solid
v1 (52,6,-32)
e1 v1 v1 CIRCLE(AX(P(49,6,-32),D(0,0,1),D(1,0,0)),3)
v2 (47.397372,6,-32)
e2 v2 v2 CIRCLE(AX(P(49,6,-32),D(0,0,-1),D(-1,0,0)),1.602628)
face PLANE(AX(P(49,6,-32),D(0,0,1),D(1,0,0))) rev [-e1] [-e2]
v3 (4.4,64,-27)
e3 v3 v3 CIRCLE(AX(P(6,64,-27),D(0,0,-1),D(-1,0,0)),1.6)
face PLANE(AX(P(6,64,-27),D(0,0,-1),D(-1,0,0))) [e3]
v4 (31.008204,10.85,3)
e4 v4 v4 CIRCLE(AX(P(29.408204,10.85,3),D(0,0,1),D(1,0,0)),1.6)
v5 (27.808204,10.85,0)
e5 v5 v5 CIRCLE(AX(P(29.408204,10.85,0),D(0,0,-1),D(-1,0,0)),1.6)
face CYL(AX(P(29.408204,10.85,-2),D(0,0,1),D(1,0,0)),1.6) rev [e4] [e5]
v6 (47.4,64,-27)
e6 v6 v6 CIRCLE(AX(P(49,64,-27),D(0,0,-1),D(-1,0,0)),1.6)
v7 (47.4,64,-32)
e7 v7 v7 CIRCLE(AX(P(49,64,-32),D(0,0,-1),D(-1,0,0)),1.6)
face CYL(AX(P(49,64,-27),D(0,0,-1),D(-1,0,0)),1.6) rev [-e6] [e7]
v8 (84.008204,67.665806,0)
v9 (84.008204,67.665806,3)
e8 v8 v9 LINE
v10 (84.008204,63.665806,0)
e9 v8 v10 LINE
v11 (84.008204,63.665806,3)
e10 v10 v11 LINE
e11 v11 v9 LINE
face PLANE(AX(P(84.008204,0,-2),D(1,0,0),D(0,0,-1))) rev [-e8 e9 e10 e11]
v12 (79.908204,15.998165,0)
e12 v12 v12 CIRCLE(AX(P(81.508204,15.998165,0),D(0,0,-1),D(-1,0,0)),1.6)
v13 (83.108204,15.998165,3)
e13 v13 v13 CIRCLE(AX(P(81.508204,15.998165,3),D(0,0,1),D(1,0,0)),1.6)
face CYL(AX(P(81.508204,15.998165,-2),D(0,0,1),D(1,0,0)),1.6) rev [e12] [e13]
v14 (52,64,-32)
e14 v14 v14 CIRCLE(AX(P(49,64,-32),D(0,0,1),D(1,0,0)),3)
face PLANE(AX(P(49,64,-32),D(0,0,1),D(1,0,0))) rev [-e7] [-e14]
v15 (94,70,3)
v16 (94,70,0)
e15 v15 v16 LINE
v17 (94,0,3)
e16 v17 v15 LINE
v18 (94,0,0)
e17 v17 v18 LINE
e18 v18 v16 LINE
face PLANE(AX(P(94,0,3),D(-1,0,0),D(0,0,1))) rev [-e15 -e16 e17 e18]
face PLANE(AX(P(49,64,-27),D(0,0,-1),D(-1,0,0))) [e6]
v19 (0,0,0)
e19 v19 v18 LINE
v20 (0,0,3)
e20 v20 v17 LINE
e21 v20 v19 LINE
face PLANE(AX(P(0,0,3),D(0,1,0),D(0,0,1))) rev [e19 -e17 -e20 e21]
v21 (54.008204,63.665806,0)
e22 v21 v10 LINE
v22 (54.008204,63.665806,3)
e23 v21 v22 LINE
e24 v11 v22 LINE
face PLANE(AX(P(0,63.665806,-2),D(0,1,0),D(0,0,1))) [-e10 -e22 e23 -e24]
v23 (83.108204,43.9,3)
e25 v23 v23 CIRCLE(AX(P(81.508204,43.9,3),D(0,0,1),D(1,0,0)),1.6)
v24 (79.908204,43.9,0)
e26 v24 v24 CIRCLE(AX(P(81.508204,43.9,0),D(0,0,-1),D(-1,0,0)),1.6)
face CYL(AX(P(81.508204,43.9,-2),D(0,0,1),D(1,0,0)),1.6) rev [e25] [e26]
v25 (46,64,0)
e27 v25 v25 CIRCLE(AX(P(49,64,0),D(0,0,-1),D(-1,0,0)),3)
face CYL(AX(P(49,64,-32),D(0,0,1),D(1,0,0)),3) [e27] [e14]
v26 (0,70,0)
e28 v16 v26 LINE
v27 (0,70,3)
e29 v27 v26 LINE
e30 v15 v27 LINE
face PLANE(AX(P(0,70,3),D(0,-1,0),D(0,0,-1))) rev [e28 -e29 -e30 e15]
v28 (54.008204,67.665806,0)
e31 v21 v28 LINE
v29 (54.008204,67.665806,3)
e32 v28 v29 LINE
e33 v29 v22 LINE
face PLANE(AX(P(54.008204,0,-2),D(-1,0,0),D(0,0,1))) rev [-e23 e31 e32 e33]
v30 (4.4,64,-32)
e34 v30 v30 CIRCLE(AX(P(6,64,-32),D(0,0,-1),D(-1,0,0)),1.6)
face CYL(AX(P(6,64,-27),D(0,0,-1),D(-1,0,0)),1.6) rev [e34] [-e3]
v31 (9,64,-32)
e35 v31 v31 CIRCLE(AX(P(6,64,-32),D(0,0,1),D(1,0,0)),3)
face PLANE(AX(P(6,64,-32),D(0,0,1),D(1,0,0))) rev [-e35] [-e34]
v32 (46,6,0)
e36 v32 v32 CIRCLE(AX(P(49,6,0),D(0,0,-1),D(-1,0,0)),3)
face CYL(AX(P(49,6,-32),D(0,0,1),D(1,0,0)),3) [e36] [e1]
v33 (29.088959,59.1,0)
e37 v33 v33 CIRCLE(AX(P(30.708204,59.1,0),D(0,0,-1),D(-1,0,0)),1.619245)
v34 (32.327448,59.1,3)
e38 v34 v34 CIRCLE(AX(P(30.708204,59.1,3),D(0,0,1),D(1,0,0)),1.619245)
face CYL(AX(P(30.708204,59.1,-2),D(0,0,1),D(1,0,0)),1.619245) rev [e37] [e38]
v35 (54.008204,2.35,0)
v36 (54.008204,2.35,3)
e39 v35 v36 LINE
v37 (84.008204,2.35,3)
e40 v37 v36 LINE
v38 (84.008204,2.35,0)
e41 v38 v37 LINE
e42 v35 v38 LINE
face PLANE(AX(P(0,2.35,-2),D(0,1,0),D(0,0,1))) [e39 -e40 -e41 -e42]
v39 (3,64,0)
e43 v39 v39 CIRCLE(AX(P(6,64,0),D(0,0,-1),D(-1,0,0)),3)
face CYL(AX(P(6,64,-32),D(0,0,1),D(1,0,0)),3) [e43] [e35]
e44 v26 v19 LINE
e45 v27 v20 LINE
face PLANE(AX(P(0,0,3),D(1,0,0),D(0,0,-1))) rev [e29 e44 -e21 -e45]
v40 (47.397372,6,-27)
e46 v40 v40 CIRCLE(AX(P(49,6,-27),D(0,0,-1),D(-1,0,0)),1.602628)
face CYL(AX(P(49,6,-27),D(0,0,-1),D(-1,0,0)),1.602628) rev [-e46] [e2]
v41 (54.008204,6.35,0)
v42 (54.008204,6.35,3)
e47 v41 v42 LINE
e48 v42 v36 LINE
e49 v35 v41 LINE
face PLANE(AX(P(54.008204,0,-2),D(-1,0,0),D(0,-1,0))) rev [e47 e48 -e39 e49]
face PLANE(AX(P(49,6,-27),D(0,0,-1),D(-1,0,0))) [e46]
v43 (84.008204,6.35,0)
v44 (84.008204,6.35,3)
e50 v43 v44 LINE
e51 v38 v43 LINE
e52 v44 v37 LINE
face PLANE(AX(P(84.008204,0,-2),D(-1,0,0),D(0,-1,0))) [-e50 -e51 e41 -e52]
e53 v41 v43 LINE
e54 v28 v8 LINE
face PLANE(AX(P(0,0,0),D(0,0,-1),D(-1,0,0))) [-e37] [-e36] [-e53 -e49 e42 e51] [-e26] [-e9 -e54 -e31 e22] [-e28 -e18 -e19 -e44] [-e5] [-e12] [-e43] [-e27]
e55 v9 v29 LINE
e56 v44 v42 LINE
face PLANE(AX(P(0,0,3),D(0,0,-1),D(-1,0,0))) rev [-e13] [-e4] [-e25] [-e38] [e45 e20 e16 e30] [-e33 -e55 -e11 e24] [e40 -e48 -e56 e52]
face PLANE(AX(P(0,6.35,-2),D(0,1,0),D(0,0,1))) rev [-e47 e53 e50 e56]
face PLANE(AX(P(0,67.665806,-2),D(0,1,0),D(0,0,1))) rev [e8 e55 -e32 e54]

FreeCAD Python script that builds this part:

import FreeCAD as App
import Part
import Sketcher

V = App.Vector
Q = App.Units.Quantity


def add_polygon(sketch, points):
    """Adds a closed chain of lines whose ends are joined by coincident constraints."""
    first, n = sketch.GeometryCount, len(points)
    for a, b in zip(points, points[1:] + points[:1]):
        sketch.addGeometry(Part.LineSegment(App.Vector(*a, 0), App.Vector(*b, 0)), False)
    for i in range(n):
        sketch.addConstraint(Sketcher.Constraint("Coincident", first + i, 2, first + (i + 1) % n, 1))

doc = App.newDocument("Part")
body = doc.addObject("PartDesign::Body", "Body")

# Sketch on XY plane
sketch1 = body.newObject("Sketcher::SketchObject", "Sketch")
sketch1.AttachmentSupport = (doc.getObject("XY_Plane"), [""])
sketch1.MapMode = "FlatFace"
add_polygon(sketch1, [(0, 70), (0, 0), (94, 0), (94, 70)])  # lines 0-3
sketch1.addConstraint([
    Sketcher.Constraint("Vertical", 0),
    Sketcher.Constraint("Horizontal", 1),
    Sketcher.Constraint("Vertical", 2),
    Sketcher.Constraint("Horizontal", 3),
    Sketcher.Constraint("Coincident", 0, 2, -1, 1),
    Sketcher.Constraint("DistanceX", 1, 1, 1, 2, Q("94 mm")),
    Sketcher.Constraint("DistanceY", 0, 2, 0, 1, Q("70 mm")),
])
pad1 = body.newObject("PartDesign::Pad", "Pad")
pad1.Profile = sketch1
pad1.Length = 3

# Sketch on XY plane
sketch2 = body.newObject("Sketcher::SketchObject", "Sketch001")
sketch2.AttachmentSupport = (doc.getObject("XY_Plane"), [""])
sketch2.MapMode = "FlatFace"
sketch2.AttachmentOffset = App.Placement(V(0, 0, 3), App.Rotation())
sketch2.addGeometry([
    Part.Circle(V(49, 6, 0), V(0, 0, 1), 3),
    Part.Circle(V(49, 64, 0), V(0, 0, 1), 3),
    Part.Circle(V(6, 64, 0), V(0, 0, 1), 3),
], False)
sketch2.addConstraint([
    Sketcher.Constraint("Equal", 0, 1),
    Sketcher.Constraint("Equal", 1, 2),
    Sketcher.Constraint("Horizontal", 1, 3, 2, 3),
    Sketcher.Constraint("Vertical", 0, 3, 1, 3),
    Sketcher.Constraint("Diameter", 0, Q("6 mm")),
    Sketcher.Constraint("DistanceX", -1, 1, 0, 3, Q("49 mm")),
    Sketcher.Constraint("DistanceY", -1, 1, 0, 3, Q("6 mm")),
    Sketcher.Constraint("DistanceY", -1, 1, 1, 3, Q("64 mm")),
    Sketcher.Constraint("DistanceX", -1, 1, 2, 3, Q("6 mm")),
])
pad2 = body.newObject("PartDesign::Pad", "Pad001")
pad2.Profile = sketch2
pad2.Length = 35
pad2.Reversed = True

# Sketch on XY plane
sketch3 = body.newObject("Sketcher::SketchObject", "Sketch002")
sketch3.AttachmentSupport = (doc.getObject("XY_Plane"), [""])
sketch3.MapMode = "FlatFace"
sketch3.AttachmentOffset = App.Placement(V(0, 0, -32), App.Rotation())
sketch3.addGeometry(Part.Circle(V(49, 6, 0), V(0, 0, 1), 1.6), False)
sketch3.addConstraint([
    Sketcher.Constraint("DistanceX", -1, 1, 0, 3, Q("49 mm")),
    Sketcher.Constraint("DistanceY", -1, 1, 0, 3, Q("6 mm")),
    Sketcher.Constraint("Diameter", 0, Q("3.205255 mm")),
])
pocket1 = body.newObject("PartDesign::Pocket", "Pocket")
pocket1.Profile = sketch3
pocket1.Length = 5
pocket1.Reversed = True

# Sketch on XY plane
sketch4 = body.newObject("Sketcher::SketchObject", "Sketch003")
sketch4.AttachmentSupport = (doc.getObject("XY_Plane"), [""])
sketch4.MapMode = "FlatFace"
sketch4.AttachmentOffset = App.Placement(V(0, 0, -32), App.Rotation())
sketch4.addGeometry(Part.Circle(V(6, 64, 0), V(0, 0, 1), 1.6), False)
sketch4.addConstraint([
    Sketcher.Constraint("Diameter", 0, Q("3.2 mm")),
    Sketcher.Constraint("DistanceX", -1, 1, 0, 3, Q("6 mm")),
    Sketcher.Constraint("DistanceY", -1, 1, 0, 3, Q("64 mm")),
])
pocket2 = body.newObject("PartDesign::Pocket", "Pocket001")
pocket2.Profile = sketch4
pocket2.Length = 5
pocket2.Reversed = True

# Sketch on XY plane
sketch5 = body.newObject("Sketcher::SketchObject", "Sketch004")
sketch5.AttachmentSupport = (doc.getObject("XY_Plane"), [""])
sketch5.MapMode = "FlatFace"
sketch5.AttachmentOffset = App.Placement(V(0, 0, -32), App.Rotation())
sketch5.addGeometry(Part.Circle(V(49, 64, 0), V(0, 0, 1), 1.6), False)
sketch5.addConstraint([
    Sketcher.Constraint("Diameter", 0, Q("3.2 mm")),
    Sketcher.Constraint("DistanceX", -1, 1, 0, 3, Q("49 mm")),
    Sketcher.Constraint("DistanceY", -1, 1, 0, 3, Q("64 mm")),
])
pocket3 = body.newObject("PartDesign::Pocket", "Pocket002")
pocket3.Profile = sketch5
pocket3.Length = 5
pocket3.Reversed = True

# Sketch on XY plane
sketch6 = body.newObject("Sketcher::SketchObject", "Sketch005")
sketch6.AttachmentSupport = (doc.getObject("XY_Plane"), [""])
sketch6.MapMode = "FlatFace"
sketch6.AttachmentOffset = App.Placement(V(0, 0, 3), App.Rotation())
add_polygon(sketch6, [(54, 67.7), (54, 63.7), (84, 63.7), (84, 67.7)])  # lines 0-3
add_polygon(sketch6, [(54, 6.3), (54, 2.4), (84, 2.4), (84, 6.3)])  # lines 4-7
sketch6.addGeometry(Part.Circle(V(29.4, 10.8, 0), V(0, 0, 1), 1.6), False)  # 8
sketch6.addGeometry(Part.Circle(V(81.5, 16, 0), V(0, 0, 1), 1.6), False)  # 9
sketch6.addGeometry(Part.Circle(V(81.5, 43.9, 0), V(0, 0, 1), 1.6), False)  # 10
sketch6.addGeometry(Part.Circle(V(30.7, 59.1, 0), V(0, 0, 1), 1.6), False)  # 11
sketch6.addConstraint([
    Sketcher.Constraint("Vertical", 0),
    Sketcher.Constraint("Horizontal", 1),
    Sketcher.Constraint("Vertical", 2),
    Sketcher.Constraint("Horizontal", 3),
    Sketcher.Constraint("Vertical", 4),
    Sketcher.Constraint("Horizontal", 5),
    Sketcher.Constraint("Vertical", 6),
    Sketcher.Constraint("Horizontal", 7),
    Sketcher.Constraint("Equal", 8, 9),
    Sketcher.Constraint("Equal", 9, 10),
    Sketcher.Constraint("Vertical", 9, 3, 10, 3),
    Sketcher.Constraint("Vertical", 3, 2, 4, 2),
    Sketcher.Constraint("Vertical", 2, 2, 5, 2),
    Sketcher.Constraint("Equal", 2, 4),
    Sketcher.Constraint("Diameter", 8, Q("3.2 mm")),
    Sketcher.Constraint("DistanceX", 1, 1, 1, 2, Q("30 mm")),
    Sketcher.Constraint("DistanceY", 0, 2, 0, 1, Q("4 mm")),
    Sketcher.Constraint("DistanceY", -1, 1, 10, 3, Q("43.9 mm")),
    Sketcher.Constraint("DistanceY", -1, 1, 11, 3, Q("59.1 mm")),
    Sketcher.Constraint("DistanceX", 8, 3, 9, 3, Q("52.1 mm")),
    Sketcher.Constraint("DistanceX", 8, 3, 11, 3, Q("1.3 mm")),
    Sketcher.Constraint("DistanceX", 11, 3, 0, 2, Q("23.3 mm")),
    Sketcher.Constraint("DistanceY", 4, 2, 8, 3, Q("8.5 mm")),
    Sketcher.Constraint("Diameter", 11, Q("3.23849 mm")),
    Sketcher.Constraint("DistanceY", -1, 1, 8, 3, Q("10.85 mm")),
    Sketcher.Constraint("DistanceY", 9, 3, 0, 2, Q("47.667641 mm")),
    Sketcher.Constraint("DistanceX", -1, 1, 8, 3, Q("29.408204 mm")),
    Sketcher.Constraint("DistanceY", -1, 1, 9, 3, Q("15.998165 mm")),
])
pocket4 = body.newObject("PartDesign::Pocket", "Pocket003")
pocket4.Profile = sketch6
pocket4.Length = 5

doc.recompute()
